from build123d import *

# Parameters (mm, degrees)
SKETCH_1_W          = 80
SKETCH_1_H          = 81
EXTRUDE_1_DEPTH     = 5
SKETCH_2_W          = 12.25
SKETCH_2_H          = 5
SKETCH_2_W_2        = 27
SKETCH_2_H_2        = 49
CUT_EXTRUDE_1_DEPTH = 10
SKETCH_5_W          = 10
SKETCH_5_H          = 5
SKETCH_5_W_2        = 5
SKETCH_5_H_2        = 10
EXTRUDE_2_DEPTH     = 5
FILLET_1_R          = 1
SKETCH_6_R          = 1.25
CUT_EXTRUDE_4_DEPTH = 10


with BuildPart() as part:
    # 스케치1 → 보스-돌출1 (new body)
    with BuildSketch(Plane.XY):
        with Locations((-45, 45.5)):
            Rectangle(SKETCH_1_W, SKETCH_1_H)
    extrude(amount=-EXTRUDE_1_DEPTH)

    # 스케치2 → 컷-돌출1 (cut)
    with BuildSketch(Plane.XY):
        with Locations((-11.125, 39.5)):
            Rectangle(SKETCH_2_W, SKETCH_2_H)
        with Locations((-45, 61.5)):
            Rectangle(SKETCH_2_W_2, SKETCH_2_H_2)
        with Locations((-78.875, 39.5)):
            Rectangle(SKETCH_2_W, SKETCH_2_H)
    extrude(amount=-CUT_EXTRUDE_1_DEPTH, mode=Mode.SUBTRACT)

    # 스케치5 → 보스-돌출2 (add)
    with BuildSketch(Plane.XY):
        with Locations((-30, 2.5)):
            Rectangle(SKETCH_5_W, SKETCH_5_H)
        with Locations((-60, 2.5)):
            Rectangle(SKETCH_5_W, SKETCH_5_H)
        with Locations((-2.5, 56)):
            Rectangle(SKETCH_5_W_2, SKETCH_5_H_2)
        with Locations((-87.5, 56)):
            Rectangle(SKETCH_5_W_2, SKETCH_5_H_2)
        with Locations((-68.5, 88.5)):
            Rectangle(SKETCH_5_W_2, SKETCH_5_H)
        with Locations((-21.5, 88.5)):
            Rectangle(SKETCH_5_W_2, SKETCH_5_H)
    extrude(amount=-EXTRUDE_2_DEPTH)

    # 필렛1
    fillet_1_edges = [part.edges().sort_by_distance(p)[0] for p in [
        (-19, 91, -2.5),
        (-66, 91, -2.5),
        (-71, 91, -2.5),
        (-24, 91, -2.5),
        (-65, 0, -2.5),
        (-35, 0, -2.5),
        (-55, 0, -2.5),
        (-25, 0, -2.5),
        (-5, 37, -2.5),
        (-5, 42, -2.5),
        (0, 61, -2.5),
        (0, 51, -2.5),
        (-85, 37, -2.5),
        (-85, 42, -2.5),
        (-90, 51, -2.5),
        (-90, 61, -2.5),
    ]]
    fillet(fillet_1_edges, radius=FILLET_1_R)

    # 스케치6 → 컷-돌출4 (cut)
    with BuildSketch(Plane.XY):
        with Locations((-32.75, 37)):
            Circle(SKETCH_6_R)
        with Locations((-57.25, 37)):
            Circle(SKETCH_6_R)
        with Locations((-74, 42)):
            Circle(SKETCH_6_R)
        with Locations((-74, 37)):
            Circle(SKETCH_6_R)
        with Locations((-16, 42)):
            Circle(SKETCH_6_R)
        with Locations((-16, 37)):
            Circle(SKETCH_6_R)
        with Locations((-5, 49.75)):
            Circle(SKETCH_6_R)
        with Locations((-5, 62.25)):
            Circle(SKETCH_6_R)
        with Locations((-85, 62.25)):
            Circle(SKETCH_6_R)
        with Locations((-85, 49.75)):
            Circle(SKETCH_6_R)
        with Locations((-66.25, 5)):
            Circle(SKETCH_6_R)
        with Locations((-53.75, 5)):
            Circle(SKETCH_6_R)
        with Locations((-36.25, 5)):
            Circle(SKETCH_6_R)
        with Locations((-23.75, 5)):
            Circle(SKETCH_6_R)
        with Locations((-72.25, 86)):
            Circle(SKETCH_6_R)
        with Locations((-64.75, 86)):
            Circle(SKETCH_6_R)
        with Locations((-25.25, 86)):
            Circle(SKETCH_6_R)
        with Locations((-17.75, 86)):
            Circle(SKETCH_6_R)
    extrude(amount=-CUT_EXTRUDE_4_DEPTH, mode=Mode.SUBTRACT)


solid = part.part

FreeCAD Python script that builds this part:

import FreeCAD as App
import Part
import Sketcher
from FreeCAD import Vector


def edges_at(feature, points):
    """Names of the edges that pass closest to the given points."""
    edges = feature.Shape.Edges
    near = lambda p: min(range(len(edges)), key=lambda i: edges[i].distToShape(Part.Vertex(*p))[0])
    return sorted({f"Edge{near(p) + 1}" for p in points})


def add_polygon(sketch, points):
    """Adds a closed chain of lines whose ends are joined by coincident constraints."""
    first, n = sketch.GeometryCount, len(points)
    for a, b in zip(points, points[1:] + points[:1]):
        sketch.addGeometry(Part.LineSegment(App.Vector(*a, 0), App.Vector(*b, 0)), False)
    for i in range(n):
        sketch.addConstraint(Sketcher.Constraint("Coincident", first + i, 2, first + (i + 1) % n, 1))

doc = App.newDocument("Part")
body = doc.addObject("PartDesign::Body", "Body")

# Sketch on XY plane
sketch1 = body.newObject("Sketcher::SketchObject", "Sketch")
sketch1.AttachmentSupport = (doc.getObject("XY_Plane"), [""])
sketch1.MapMode = "FlatFace"
add_polygon(sketch1, [(-85, 86), (-85, 5), (-5, 5), (-5, 86)])  # lines 0-3
sketch1.addConstraint(Sketcher.Constraint("Vertical", 0))
sketch1.addConstraint(Sketcher.Constraint("Horizontal", 1))
sketch1.addConstraint(Sketcher.Constraint("Vertical", 2))
sketch1.addConstraint(Sketcher.Constraint("Horizontal", 3))
sketch1.addConstraint(Sketcher.Constraint("DistanceX", 1, 1, 1, 2, 80.0))
sketch1.addConstraint(Sketcher.Constraint("DistanceY", 0, 2, 0, 1, 81.0))
sketch1.addConstraint(Sketcher.Constraint("DistanceX", 0, 2, -1, 1, 85.0))
sketch1.addConstraint(Sketcher.Constraint("DistanceY", -1, 1, 0, 2, 5.0))
pad1 = body.newObject("PartDesign::Pad", "Pad")
pad1.Profile = sketch1
pad1.Length = 5
pad1.Reversed = True

# Sketch on XY plane
sketch2 = body.newObject("Sketcher::SketchObject", "Sketch001")
sketch2.AttachmentSupport = (doc.getObject("XY_Plane"), [""])
sketch2.MapMode = "FlatFace"
add_polygon(sketch2, [(-17, 42), (-17, 37), (-5, 37), (-5, 42)])  # lines 0-3
add_polygon(sketch2, [(-58, 86), (-58, 37), (-32, 37), (-32, 86)])  # lines 4-7
add_polygon(sketch2, [(-85, 42), (-85, 37), (-73, 37), (-73, 42)])  # lines 8-11
sketch2.addConstraint(Sketcher.Constraint("Vertical", 0))
sketch2.addConstraint(Sketcher.Constraint("Horizontal", 1))
sketch2.addConstraint(Sketcher.Constraint("Vertical", 2))
sketch2.addConstraint(Sketcher.Constraint("Horizontal", 3))
sketch2.addConstraint(Sketcher.Constraint("Vertical", 4))
sketch2.addConstraint(Sketcher.Constraint("Horizontal", 5))
sketch2.addConstraint(Sketcher.Constraint("Vertical", 6))
sketch2.addConstraint(Sketcher.Constraint("Horizontal", 7))
sketch2.addConstraint(Sketcher.Constraint("Vertical", 8))
sketch2.addConstraint(Sketcher.Constraint("Horizontal", 9))
sketch2.addConstraint(Sketcher.Constraint("Vertical", 10))
sketch2.addConstraint(Sketcher.Constraint("Horizontal", 11))
sketch2.addConstraint(Sketcher.Constraint("Horizontal", 1, 2, 4, 2))
sketch2.addConstraint(Sketcher.Constraint("Horizontal", 5, 2, 8, 2))
sketch2.addConstraint(Sketcher.Constraint("Horizontal", 3, 2, 10, 2))
sketch2.addConstraint(Sketcher.Constraint("Equal", 3, 9))
sketch2.addConstraint(Sketcher.Constraint("DistanceX", 5, 1, 5, 2, 27.0))
sketch2.addConstraint(Sketcher.Constraint("DistanceY", 0, 2, 0, 1, 5.0))
sketch2.addConstraint(Sketcher.Constraint("DistanceY", 4, 2, 4, 1, 49.0))
sketch2.addConstraint(Sketcher.Constraint("DistanceY", -1, 1, 0, 2, 37.0))
sketch2.addConstraint(Sketcher.Constraint("DistanceX", 1, 2, -1, 1, 5.0))
sketch2.addConstraint(Sketcher.Constraint("DistanceX", 8, 2, -1, 1, 85.0))
sketch2.addConstraint(Sketcher.Constraint("DistanceX", 1, 1, 1, 2, 12.25))
sketch2.addConstraint(Sketcher.Constraint("DistanceX", 4, 2, -1, 1, 58.5))
pocket1 = body.newObject("PartDesign::Pocket", "Pocket")
pocket1.Profile = sketch2
pocket1.Length = 10

# Sketch on XY plane
sketch3 = body.newObject("Sketcher::SketchObject", "Sketch002")
sketch3.AttachmentSupport = (doc.getObject("XY_Plane"), [""])
sketch3.MapMode = "FlatFace"
add_polygon(sketch3, [(-35, 5), (-35, 0), (-25, 0), (-25, 5)])  # lines 0-3
add_polygon(sketch3, [(-65, 5), (-65, 0), (-55, 0), (-55, 5)])  # lines 4-7
add_polygon(sketch3, [(-5, 61), (-5, 51), (0, 51), (0, 61)])  # lines 8-11
add_polygon(sketch3, [(-90, 61), (-90, 51), (-85, 51), (-85, 61)])  # lines 12-15
add_polygon(sketch3, [(-71, 91), (-71, 86), (-66, 86), (-66, 91)])  # lines 16-19
add_polygon(sketch3, [(-24, 91), (-24, 86), (-19, 86), (-19, 91)])  # lines 20-23
sketch3.addConstraint(Sketcher.Constraint("Vertical", 0))
sketch3.addConstraint(Sketcher.Constraint("Horizontal", 1))
sketch3.addConstraint(Sketcher.Constraint("Vertical", 2))
sketch3.addConstraint(Sketcher.Constraint("Horizontal", 3))
sketch3.addConstraint(Sketcher.Constraint("Vertical", 4))
sketch3.addConstraint(Sketcher.Constraint("Horizontal", 5))
sketch3.addConstraint(Sketcher.Constraint("Vertical", 6))
sketch3.addConstraint(Sketcher.Constraint("Horizontal", 7))
sketch3.addConstraint(Sketcher.Constraint("Vertical", 8))
sketch3.addConstraint(Sketcher.Constraint("Horizontal", 9))
sketch3.addConstraint(Sketcher.Constraint("Vertical", 10))
sketch3.addConstraint(Sketcher.Constraint("Horizontal", 11))
sketch3.addConstraint(Sketcher.Constraint("Vertical", 12))
sketch3.addConstraint(Sketcher.Constraint("Horizontal", 13))
sketch3.addConstraint(Sketcher.Constraint("Vertical", 14))
sketch3.addConstraint(Sketcher.Constraint("Horizontal", 15))
sketch3.addConstraint(Sketcher.Constraint("Vertical", 16))
sketch3.addConstraint(Sketcher.Constraint("Horizontal", 17))
sketch3.addConstraint(Sketcher.Constraint("Vertical", 18))
sketch3.addConstraint(Sketcher.Constraint("Horizontal", 19))
sketch3.addConstraint(Sketcher.Constraint("Vertical", 20))
sketch3.addConstraint(Sketcher.Constraint("Horizontal", 21))
sketch3.addConstraint(Sketcher.Constraint("Vertical", 22))
sketch3.addConstraint(Sketcher.Constraint("Horizontal", 23))
sketch3.addConstraint(Sketcher.Constraint("PointOnObject", 0, 2, -1))
sketch3.addConstraint(Sketcher.Constraint("PointOnObject", 4, 2, -1))
sketch3.addConstraint(Sketcher.Constraint("PointOnObject", 9, 2, -2))
sketch3.addConstraint(Sketcher.Constraint("Horizontal", 3, 2, 6, 2))
sketch3.addConstraint(Sketcher.Constraint("Horizontal", 9, 2, 12, 2))
sketch3.addConstraint(Sketcher.Constraint("Horizontal", 11, 2, 14, 2))
sketch3.addConstraint(Sketcher.Constraint("Horizontal", 17, 2, 20, 2))
sketch3.addConstraint(Sketcher.Constraint("Horizontal", 19, 2, 22, 2))
sketch3.addConstraint(Sketcher.Constraint("Equal", 3, 5))
sketch3.addConstraint(Sketcher.Constraint("Equal", 11, 13))
sketch3.addConstraint(Sketcher.Constraint("Equal", 15, 17))
sketch3.addConstraint(Sketcher.Constraint("Equal", 19, 21))
sketch3.addConstraint(Sketcher.Constraint("Equal", 23, 0))
sketch3.addConstraint(Sketcher.Constraint("Equal", 7, 8))
sketch3.addConstraint(Sketcher.Constraint("Equal", 6, 16))
sketch3.addConstraint(Sketcher.Constraint("DistanceX", 1, 1, 1, 2, 10.0))
sketch3.addConstraint(Sketcher.Constraint("DistanceX", 9, 1, 9, 2, 5.0))
sketch3.addConstraint(Sketcher.Constraint("DistanceX", 0, 2, -1, 1, 35.0))
sketch3.addConstraint(Sketcher.Constraint("DistanceX", 4, 2, -1, 1, 65.0))
sketch3.addConstraint(Sketcher.Constraint("DistanceY", -1, 1, 8, 2, 51.0))
sketch3.addConstraint(Sketcher.Constraint("DistanceX", 12, 2, -1, 1, 90.0))
sketch3.addConstraint(Sketcher.Constraint("DistanceX", 16, 2, -1, 1, 71.0))
sketch3.addConstraint(Sketcher.Constraint("DistanceY", -1, 1, 16, 2, 86.0))
sketch3.addConstraint(Sketcher.Constraint("DistanceX", 20, 2, -1, 1, 24.0))
pad2 = body.newObject("PartDesign::Pad", "Pad001")
pad2.Profile = sketch3
pad2.Length = 5
pad2.Reversed = True
doc.recompute()

fillet = body.newObject("PartDesign::Fillet", "Fillet")
fillet.Base = (pad2, edges_at(pad2, [
    (-19, 91, -2.5),
    (-66, 91, -2.5),
    (-71, 91, -2.5),
    (-24, 91, -2.5),
    (-65, 0, -2.5),
    (-35, 0, -2.5),
    (-55, 0, -2.5),
    (-25, 0, -2.5),
    (-5, 37, -2.5),
    (-5, 42, -2.5),
    (0, 61, -2.5),
    (0, 51, -2.5),
    (-85, 37, -2.5),
    (-85, 42, -2.5),
    (-90, 51, -2.5),
    (-90, 61, -2.5),
]))
fillet.Radius = 1

# Sketch on XY plane
sketch4 = body.newObject("Sketcher::SketchObject", "Sketch003")
sketch4.AttachmentSupport = (doc.getObject("XY_Plane"), [""])
sketch4.MapMode = "FlatFace"
sketch4.addGeometry(Part.Circle(Vector(-32.8, 37, 0), Vector(0, 0, 1), 1.2), False)
sketch4.addGeometry(Part.Circle(Vector(-57.2, 37, 0), Vector(0, 0, 1), 1.2), False)
sketch4.addGeometry(Part.Circle(Vector(-74, 42, 0), Vector(0, 0, 1), 1.2), False)
sketch4.addGeometry(Part.Circle(Vector(-74, 37, 0), Vector(0, 0, 1), 1.2), False)
sketch4.addGeometry(Part.Circle(Vector(-16, 42, 0), Vector(0, 0, 1), 1.2), False)
sketch4.addGeometry(Part.Circle(Vector(-16, 37, 0), Vector(0, 0, 1), 1.2), False)
sketch4.addGeometry(Part.Circle(Vector(-5, 49.8, 0), Vector(0, 0, 1), 1.2), False)
sketch4.addGeometry(Part.Circle(Vector(-5, 62.2, 0), Vector(0, 0, 1), 1.2), False)
sketch4.addGeometry(Part.Circle(Vector(-85, 62.2, 0), Vector(0, 0, 1), 1.2), False)
sketch4.addGeometry(Part.Circle(Vector(-85, 49.8, 0), Vector(0, 0, 1), 1.2), False)
sketch4.addGeometry(Part.Circle(Vector(-66.2, 5, 0), Vector(0, 0, 1), 1.2), False)
sketch4.addGeometry(Part.Circle(Vector(-53.8, 5, 0), Vector(0, 0, 1), 1.2), False)
sketch4.addGeometry(Part.Circle(Vector(-36.2, 5, 0), Vector(0, 0, 1), 1.2), False)
sketch4.addGeometry(Part.Circle(Vector(-23.8, 5, 0), Vector(0, 0, 1), 1.2), False)
sketch4.addGeometry(Part.Circle(Vector(-72.2, 86, 0), Vector(0, 0, 1), 1.2), False)
sketch4.addGeometry(Part.Circle(Vector(-64.8, 86, 0), Vector(0, 0, 1), 1.2), False)
sketch4.addGeometry(Part.Circle(Vector(-25.2, 86, 0), Vector(0, 0, 1), 1.2), False)
sketch4.addGeometry(Part.Circle(Vector(-17.8, 86, 0), Vector(0, 0, 1), 1.2), False)
sketch4.addConstraint(Sketcher.Constraint("Equal", 0, 1))
sketch4.addConstraint(Sketcher.Constraint("Equal", 1, 2))
sketch4.addConstraint(Sketcher.Constraint("Equal", 2, 3))
sketch4.addConstraint(Sketcher.Constraint("Equal", 3, 4))
sketch4.addConstraint(Sketcher.Constraint("Equal", 4, 5))
sketch4.addConstraint(Sketcher.Constraint("Equal", 5, 6))
sketch4.addConstraint(Sketcher.Constraint("Equal", 6, 7))
sketch4.addConstraint(Sketcher.Constraint("Equal", 7, 8))
sketch4.addConstraint(Sketcher.Constraint("Equal", 8, 9))
sketch4.addConstraint(Sketcher.Constraint("Equal", 9, 10))
sketch4.addConstraint(Sketcher.Constraint("Equal", 10, 11))
sketch4.addConstraint(Sketcher.Constraint("Equal", 11, 12))
sketch4.addConstraint(Sketcher.Constraint("Equal", 12, 13))
sketch4.addConstraint(Sketcher.Constraint("Equal", 13, 14))
sketch4.addConstraint(Sketcher.Constraint("Equal", 14, 15))
sketch4.addConstraint(Sketcher.Constraint("Equal", 15, 16))
sketch4.addConstraint(Sketcher.Constraint("Equal", 16, 17))
sketch4.addConstraint(Sketcher.Constraint("Horizontal", 0, 3, 1, 3))
sketch4.addConstraint(Sketcher.Constraint("Horizontal", 1, 3, 3, 3))
sketch4.addConstraint(Sketcher.Constraint("Horizontal", 2, 3, 4, 3))
sketch4.addConstraint(Sketcher.Constraint("Horizontal", 3, 3, 5, 3))
sketch4.addConstraint(Sketcher.Constraint("Horizontal", 7, 3, 8, 3))
sketch4.addConstraint(Sketcher.Constraint("Horizontal", 6, 3, 9, 3))
sketch4.addConstraint(Sketcher.Constraint("Horizontal", 10, 3, 11, 3))
sketch4.addConstraint(Sketcher.Constraint("Horizontal", 11, 3, 12, 3))
sketch4.addConstraint(Sketcher.Constraint("Horizontal", 12, 3, 13, 3))
sketch4.addConstraint(Sketcher.Constraint("Horizontal", 14, 3, 15, 3))
sketch4.addConstraint(Sketcher.Constraint("Horizontal", 15, 3, 16, 3))
sketch4.addConstraint(Sketcher.Constraint("Horizontal", 16, 3, 17, 3))
sketch4.addConstraint(Sketcher.Constraint("Vertical", 2, 3, 3, 3))
sketch4.addConstraint(Sketcher.Constraint("Vertical", 4, 3, 5, 3))
sketch4.addConstraint(Sketcher.Constraint("Vertical", 6, 3, 7, 3))
sketch4.addConstraint(Sketcher.Constraint("Vertical", 8, 3, 9, 3))
sketch4.addConstraint(Sketcher.Constraint("Diameter", 0, 2.5))
sketch4.addConstraint(Sketcher.Constraint("DistanceY", -1, 1, 0, 3, 37.0))
sketch4.addConstraint(Sketcher.Constraint("DistanceX", 2, 3, -1, 1, 74.0))
sketch4.addConstraint(Sketcher.Constraint("DistanceY", -1, 1, 2, 3, 42.0))
sketch4.addConstraint(Sketcher.Constraint("DistanceX", 4, 3, -1, 1, 16.0))
sketch4.addConstraint(Sketcher.Constraint("DistanceX", 6, 3, -1, 1, 5.0))
sketch4.addConstraint(Sketcher.Constraint("DistanceX", 8, 3, -1, 1, 85.0))
sketch4.addConstraint(Sketcher.Constraint("DistanceY", -1, 1, 10, 3, 5.0))
sketch4.addConstraint(Sketcher.Constraint("DistanceY", -1, 1, 14, 3, 86.0))
sketch4.addConstraint(Sketcher.Constraint("DistanceX", 10, 3, 1, 3, 9.0))
sketch4.addConstraint(Sketcher.Constraint("DistanceX", 11, 3, 0, 3, 21.0))
sketch4.addConstraint(Sketcher.Constraint("DistanceX", 10, 3, 12, 3, 30.0))
sketch4.addConstraint(Sketcher.Constraint("DistanceX", 11, 3, 13, 3, 30.0))
sketch4.addConstraint(Sketcher.Constraint("DistanceX", 14, 3, 1, 3, 15.0))
sketch4.addConstraint(Sketcher.Constraint("DistanceX", 14, 3, 16, 3, 47.0))
sketch4.addConstraint(Sketcher.Constraint("DistanceX", 15, 3, 17, 3, 47.0))
sketch4.addConstraint(Sketcher.Constraint("DistanceX", 1, 3, 0, 3, 24.5))
sketch4.addConstraint(Sketcher.Constraint("DistanceY", 6, 3, 7, 3, 12.5))
sketch4.addConstraint(Sketcher.Constraint("DistanceX", 14, 3, 15, 3, 7.5))
sketch4.addConstraint(Sketcher.Constraint("DistanceX", 0, 3, -1, 1, 32.75))
sketch4.addConstraint(Sketcher.Constraint("DistanceY", -1, 1, 6, 3, 49.75))
pocket2 = body.newObject("PartDesign::Pocket", "Pocket001")
pocket2.Profile = sketch4
pocket2.Length = 10

doc.recompute()
